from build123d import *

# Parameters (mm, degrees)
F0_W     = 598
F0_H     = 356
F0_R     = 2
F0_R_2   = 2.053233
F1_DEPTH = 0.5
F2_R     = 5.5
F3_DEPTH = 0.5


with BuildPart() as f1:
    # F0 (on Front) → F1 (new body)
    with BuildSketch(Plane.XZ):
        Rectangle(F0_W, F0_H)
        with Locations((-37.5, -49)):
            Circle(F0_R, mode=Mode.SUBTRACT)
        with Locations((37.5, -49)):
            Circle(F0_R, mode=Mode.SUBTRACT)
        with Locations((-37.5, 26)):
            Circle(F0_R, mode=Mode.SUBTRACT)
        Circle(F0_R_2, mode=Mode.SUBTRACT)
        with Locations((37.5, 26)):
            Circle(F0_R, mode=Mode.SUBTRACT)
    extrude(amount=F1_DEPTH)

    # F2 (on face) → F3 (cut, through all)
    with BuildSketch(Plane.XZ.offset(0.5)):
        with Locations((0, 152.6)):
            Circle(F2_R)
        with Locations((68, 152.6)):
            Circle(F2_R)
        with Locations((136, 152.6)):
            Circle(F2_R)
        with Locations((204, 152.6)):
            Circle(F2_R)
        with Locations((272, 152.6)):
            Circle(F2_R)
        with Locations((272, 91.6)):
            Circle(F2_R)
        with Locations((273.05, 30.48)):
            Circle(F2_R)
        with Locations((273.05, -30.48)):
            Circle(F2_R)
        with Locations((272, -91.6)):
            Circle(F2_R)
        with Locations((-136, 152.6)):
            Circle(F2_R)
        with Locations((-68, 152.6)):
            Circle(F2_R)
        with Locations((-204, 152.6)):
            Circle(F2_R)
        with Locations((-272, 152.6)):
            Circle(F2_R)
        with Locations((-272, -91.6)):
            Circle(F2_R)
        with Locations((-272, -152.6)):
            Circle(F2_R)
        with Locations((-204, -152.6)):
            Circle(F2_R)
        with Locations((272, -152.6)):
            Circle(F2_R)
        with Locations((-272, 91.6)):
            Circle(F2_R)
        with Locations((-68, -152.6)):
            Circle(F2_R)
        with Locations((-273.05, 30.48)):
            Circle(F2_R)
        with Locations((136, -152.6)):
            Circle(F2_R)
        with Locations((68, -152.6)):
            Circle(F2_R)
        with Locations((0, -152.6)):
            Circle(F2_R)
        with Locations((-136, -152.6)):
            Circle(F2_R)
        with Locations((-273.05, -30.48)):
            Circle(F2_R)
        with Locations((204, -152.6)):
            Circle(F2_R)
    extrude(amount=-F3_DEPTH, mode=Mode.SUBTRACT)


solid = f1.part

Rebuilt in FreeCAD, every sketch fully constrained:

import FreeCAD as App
import Part
import Sketcher
from FreeCAD import Vector
Q = App.Units.Quantity


def add_polygon(sketch, points):
    """Adds a closed chain of lines whose ends are joined by coincident constraints."""
    first, n = sketch.GeometryCount, len(points)
    for a, b in zip(points, points[1:] + points[:1]):
        sketch.addGeometry(Part.LineSegment(App.Vector(*a, 0), App.Vector(*b, 0)), False)
    for i in range(n):
        sketch.addConstraint(Sketcher.Constraint("Coincident", first + i, 2, first + (i + 1) % n, 1))

doc = App.newDocument("Part")
body = doc.addObject("PartDesign::Body", "Body")

sketch1 = doc.addObject("Sketcher::SketchObject", "Sketch")
body.addObject(sketch1)
sketch1.AttachmentSupport = (doc.XZ_Plane, [""])
sketch1.MapMode = "FlatFace"
add_polygon(sketch1, [(-299, 178), (-299, -178), (299, -178), (299, 178)])
sketch1.addGeometry(Part.Circle(Vector(-37.5, -49, 0), Vector(0, 0, 1), 2), False)
sketch1.addGeometry(Part.Circle(Vector(37.5, -49, 0), Vector(0, 0, 1), 2), False)
sketch1.addGeometry(Part.Circle(Vector(-37.5, 26, 0), Vector(0, 0, 1), 2), False)
sketch1.addGeometry(Part.Circle(Vector(0, 0, 0), Vector(0, 0, 1), 2.1), False)
sketch1.addGeometry(Part.Circle(Vector(37.5, 26, 0), Vector(0, 0, 1), 2), False)
sketch1.addConstraint([
    Sketcher.Constraint("Vertical", 0),
    Sketcher.Constraint("Horizontal", 1),
    Sketcher.Constraint("Vertical", 2),
    Sketcher.Constraint("Horizontal", 3),
    Sketcher.Constraint("Coincident", 7, 3, -1, 1),
    Sketcher.Constraint("Equal", 4, 5),
    Sketcher.Constraint("Equal", 5, 6),
    Sketcher.Constraint("Equal", 6, 8),
    Sketcher.Constraint("Symmetric", 0, 2, 2, 2, -1, 1),
    Sketcher.Constraint("Symmetric", 4, 3, 5, 3, -2),
    Sketcher.Constraint("Symmetric", 6, 3, 8, 3, -2),
    Sketcher.Constraint("Vertical", 4, 3, 6, 3),
    Sketcher.Constraint("Diameter", 4, Q("4 mm")),
    Sketcher.Constraint("DistanceX", 1, 1, 1, 2, Q("598 mm")),
    Sketcher.Constraint("DistanceY", 0, 2, 0, 1, Q("356 mm")),
    Sketcher.Constraint("DistanceY", 4, 3, -1, 1, Q("49 mm")),
    Sketcher.Constraint("DistanceY", -1, 1, 6, 3, Q("26 mm")),
    Sketcher.Constraint("DistanceX", 4, 3, 5, 3, Q("75 mm")),
    Sketcher.Constraint("Diameter", 7, Q("4.106466 mm")),
])
pad1 = doc.addObject("PartDesign::Pad", "Pad")
body.addObject(pad1)
pad1.Profile = sketch1
pad1.Length = 0.5

sketch2 = doc.addObject("Sketcher::SketchObject", "Sketch001")
body.addObject(sketch2)
sketch2.AttachmentSupport = (doc.XZ_Plane, [""])
sketch2.MapMode = "FlatFace"
sketch2.AttachmentOffset = App.Placement(Vector(0, 0, 0.5), App.Rotation())
sketch2.addGeometry([
    Part.Circle(Vector(0, 153, 0), Vector(0, 0, 1), 6),
    Part.Circle(Vector(68, 153, 0), Vector(0, 0, 1), 6),
    Part.Circle(Vector(136, 153, 0), Vector(0, 0, 1), 6),
    Part.Circle(Vector(204, 153, 0), Vector(0, 0, 1), 6),
    Part.Circle(Vector(272, 153, 0), Vector(0, 0, 1), 6),
    Part.Circle(Vector(272, 92, 0), Vector(0, 0, 1), 6),
    Part.Circle(Vector(273, 30, 0), Vector(0, 0, 1), 6),
    Part.Circle(Vector(273, -30, 0), Vector(0, 0, 1), 6),
    Part.Circle(Vector(272, -92, 0), Vector(0, 0, 1), 6),
    Part.Circle(Vector(-136, 153, 0), Vector(0, 0, 1), 6),
    Part.Circle(Vector(-68, 153, 0), Vector(0, 0, 1), 6),
    Part.Circle(Vector(-204, 153, 0), Vector(0, 0, 1), 6),
    Part.Circle(Vector(-272, 153, 0), Vector(0, 0, 1), 6),
    Part.Circle(Vector(-272, -92, 0), Vector(0, 0, 1), 6),
    Part.Circle(Vector(-272, -153, 0), Vector(0, 0, 1), 6),
    Part.Circle(Vector(-204, -153, 0), Vector(0, 0, 1), 6),
    Part.Circle(Vector(272, -153, 0), Vector(0, 0, 1), 6),
    Part.Circle(Vector(-272, 92, 0), Vector(0, 0, 1), 6),
    Part.Circle(Vector(-68, -153, 0), Vector(0, 0, 1), 6),
    Part.Circle(Vector(-273, 30, 0), Vector(0, 0, 1), 6),
    Part.Circle(Vector(136, -153, 0), Vector(0, 0, 1), 6),
    Part.Circle(Vector(68, -153, 0), Vector(0, 0, 1), 6),
    Part.Circle(Vector(0, -153, 0), Vector(0, 0, 1), 6),
    Part.Circle(Vector(-136, -153, 0), Vector(0, 0, 1), 6),
    Part.Circle(Vector(-273, -30, 0), Vector(0, 0, 1), 6),
    Part.Circle(Vector(204, -153, 0), Vector(0, 0, 1), 6),
], False)
sketch2.addConstraint([
    Sketcher.Constraint("Equal", 0, 1),
    Sketcher.Constraint("Equal", 1, 2),
    Sketcher.Constraint("Equal", 2, 3),
    Sketcher.Constraint("Equal", 3, 4),
    Sketcher.Constraint("Equal", 4, 5),
    Sketcher.Constraint("Equal", 5, 6),
    Sketcher.Constraint("Equal", 6, 7),
    Sketcher.Constraint("Equal", 7, 8),
    Sketcher.Constraint("Equal", 8, 9),
    Sketcher.Constraint("Equal", 9, 10),
    Sketcher.Constraint("Equal", 10, 11),
    Sketcher.Constraint("Equal", 11, 12),
    Sketcher.Constraint("Equal", 12, 13),
    Sketcher.Constraint("Equal", 13, 14),
    Sketcher.Constraint("Equal", 14, 15),
    Sketcher.Constraint("Equal", 15, 16),
    Sketcher.Constraint("Equal", 16, 17),
    Sketcher.Constraint("Equal", 17, 18),
    Sketcher.Constraint("Equal", 18, 19),
    Sketcher.Constraint("Equal", 19, 20),
    Sketcher.Constraint("Equal", 20, 21),
    Sketcher.Constraint("Equal", 21, 22),
    Sketcher.Constraint("Equal", 22, 23),
    Sketcher.Constraint("Equal", 23, 24),
    Sketcher.Constraint("Equal", 24, 25),
    Sketcher.Constraint("Symmetric", 5, 3, 13, 3, -1, 1),
    Sketcher.Constraint("Symmetric", 4, 3, 14, 3, -1, 1),
    Sketcher.Constraint("Symmetric", 3, 3, 15, 3, -1, 1),
    Sketcher.Constraint("Symmetric", 12, 3, 16, 3, -1, 1),
    Sketcher.Constraint("Symmetric", 8, 3, 17, 3, -1, 1),
    Sketcher.Constraint("Symmetric", 1, 3, 18, 3, -1, 1),
    Sketcher.Constraint("Symmetric", 7, 3, 19, 3, -1, 1),
    Sketcher.Constraint("Symmetric", 9, 3, 20, 3, -1, 1),
    Sketcher.Constraint("Symmetric", 10, 3, 21, 3, -1, 1),
    Sketcher.Constraint("Symmetric", 0, 3, 22, 3, -1, 1),
    Sketcher.Constraint("Symmetric", 2, 3, 23, 3, -1, 1),
    Sketcher.Constraint("Symmetric", 6, 3, 24, 3, -1, 1),
    Sketcher.Constraint("Symmetric", 11, 3, 25, 3, -1, 1),
    Sketcher.Constraint("Symmetric", 2, 3, 9, 3, -2),
    Sketcher.Constraint("Symmetric", 1, 3, 10, 3, -2),
    Sketcher.Constraint("Symmetric", 3, 3, 11, 3, -2),
    Sketcher.Constraint("Symmetric", 4, 3, 12, 3, -2),
    Sketcher.Constraint("Symmetric", 8, 3, 13, 3, -2),
    Sketcher.Constraint("Symmetric", 6, 3, 19, 3, -2),
    Sketcher.Constraint("PointOnObject", 0, 3, -2),
    Sketcher.Constraint("Horizontal", 0, 3, 1, 3),
    Sketcher.Constraint("Horizontal", 1, 3, 2, 3),
    Sketcher.Constraint("Horizontal", 2, 3, 3, 3),
    Sketcher.Constraint("Horizontal", 3, 3, 4, 3),
    Sketcher.Constraint("Vertical", 4, 3, 5, 3),
    Sketcher.Constraint("Diameter", 0, Q("11 mm")),
    Sketcher.Constraint("DistanceX", -1, 1, 1, 3, Q("68 mm")),
    Sketcher.Constraint("DistanceX", -1, 1, 2, 3, Q("136 mm")),
    Sketcher.Constraint("DistanceX", -1, 1, 3, 3, Q("204 mm")),
    Sketcher.Constraint("DistanceX", -1, 1, 4, 3, Q("272 mm")),
    Sketcher.Constraint("DistanceY", 5, 3, 4, 3, Q("61 mm")),
    Sketcher.Constraint("DistanceY", -1, 1, 0, 3, Q("152.6 mm")),
    Sketcher.Constraint("DistanceX", -1, 1, 6, 3, Q("273.05 mm")),
    Sketcher.Constraint("DistanceY", -1, 1, 6, 3, Q("30.48 mm")),
])
pocket1 = doc.addObject("PartDesign::Pocket", "Pocket")
body.addObject(pocket1)
pocket1.Profile = sketch2
pocket1.Type = "ThroughAll"

doc.recompute()
